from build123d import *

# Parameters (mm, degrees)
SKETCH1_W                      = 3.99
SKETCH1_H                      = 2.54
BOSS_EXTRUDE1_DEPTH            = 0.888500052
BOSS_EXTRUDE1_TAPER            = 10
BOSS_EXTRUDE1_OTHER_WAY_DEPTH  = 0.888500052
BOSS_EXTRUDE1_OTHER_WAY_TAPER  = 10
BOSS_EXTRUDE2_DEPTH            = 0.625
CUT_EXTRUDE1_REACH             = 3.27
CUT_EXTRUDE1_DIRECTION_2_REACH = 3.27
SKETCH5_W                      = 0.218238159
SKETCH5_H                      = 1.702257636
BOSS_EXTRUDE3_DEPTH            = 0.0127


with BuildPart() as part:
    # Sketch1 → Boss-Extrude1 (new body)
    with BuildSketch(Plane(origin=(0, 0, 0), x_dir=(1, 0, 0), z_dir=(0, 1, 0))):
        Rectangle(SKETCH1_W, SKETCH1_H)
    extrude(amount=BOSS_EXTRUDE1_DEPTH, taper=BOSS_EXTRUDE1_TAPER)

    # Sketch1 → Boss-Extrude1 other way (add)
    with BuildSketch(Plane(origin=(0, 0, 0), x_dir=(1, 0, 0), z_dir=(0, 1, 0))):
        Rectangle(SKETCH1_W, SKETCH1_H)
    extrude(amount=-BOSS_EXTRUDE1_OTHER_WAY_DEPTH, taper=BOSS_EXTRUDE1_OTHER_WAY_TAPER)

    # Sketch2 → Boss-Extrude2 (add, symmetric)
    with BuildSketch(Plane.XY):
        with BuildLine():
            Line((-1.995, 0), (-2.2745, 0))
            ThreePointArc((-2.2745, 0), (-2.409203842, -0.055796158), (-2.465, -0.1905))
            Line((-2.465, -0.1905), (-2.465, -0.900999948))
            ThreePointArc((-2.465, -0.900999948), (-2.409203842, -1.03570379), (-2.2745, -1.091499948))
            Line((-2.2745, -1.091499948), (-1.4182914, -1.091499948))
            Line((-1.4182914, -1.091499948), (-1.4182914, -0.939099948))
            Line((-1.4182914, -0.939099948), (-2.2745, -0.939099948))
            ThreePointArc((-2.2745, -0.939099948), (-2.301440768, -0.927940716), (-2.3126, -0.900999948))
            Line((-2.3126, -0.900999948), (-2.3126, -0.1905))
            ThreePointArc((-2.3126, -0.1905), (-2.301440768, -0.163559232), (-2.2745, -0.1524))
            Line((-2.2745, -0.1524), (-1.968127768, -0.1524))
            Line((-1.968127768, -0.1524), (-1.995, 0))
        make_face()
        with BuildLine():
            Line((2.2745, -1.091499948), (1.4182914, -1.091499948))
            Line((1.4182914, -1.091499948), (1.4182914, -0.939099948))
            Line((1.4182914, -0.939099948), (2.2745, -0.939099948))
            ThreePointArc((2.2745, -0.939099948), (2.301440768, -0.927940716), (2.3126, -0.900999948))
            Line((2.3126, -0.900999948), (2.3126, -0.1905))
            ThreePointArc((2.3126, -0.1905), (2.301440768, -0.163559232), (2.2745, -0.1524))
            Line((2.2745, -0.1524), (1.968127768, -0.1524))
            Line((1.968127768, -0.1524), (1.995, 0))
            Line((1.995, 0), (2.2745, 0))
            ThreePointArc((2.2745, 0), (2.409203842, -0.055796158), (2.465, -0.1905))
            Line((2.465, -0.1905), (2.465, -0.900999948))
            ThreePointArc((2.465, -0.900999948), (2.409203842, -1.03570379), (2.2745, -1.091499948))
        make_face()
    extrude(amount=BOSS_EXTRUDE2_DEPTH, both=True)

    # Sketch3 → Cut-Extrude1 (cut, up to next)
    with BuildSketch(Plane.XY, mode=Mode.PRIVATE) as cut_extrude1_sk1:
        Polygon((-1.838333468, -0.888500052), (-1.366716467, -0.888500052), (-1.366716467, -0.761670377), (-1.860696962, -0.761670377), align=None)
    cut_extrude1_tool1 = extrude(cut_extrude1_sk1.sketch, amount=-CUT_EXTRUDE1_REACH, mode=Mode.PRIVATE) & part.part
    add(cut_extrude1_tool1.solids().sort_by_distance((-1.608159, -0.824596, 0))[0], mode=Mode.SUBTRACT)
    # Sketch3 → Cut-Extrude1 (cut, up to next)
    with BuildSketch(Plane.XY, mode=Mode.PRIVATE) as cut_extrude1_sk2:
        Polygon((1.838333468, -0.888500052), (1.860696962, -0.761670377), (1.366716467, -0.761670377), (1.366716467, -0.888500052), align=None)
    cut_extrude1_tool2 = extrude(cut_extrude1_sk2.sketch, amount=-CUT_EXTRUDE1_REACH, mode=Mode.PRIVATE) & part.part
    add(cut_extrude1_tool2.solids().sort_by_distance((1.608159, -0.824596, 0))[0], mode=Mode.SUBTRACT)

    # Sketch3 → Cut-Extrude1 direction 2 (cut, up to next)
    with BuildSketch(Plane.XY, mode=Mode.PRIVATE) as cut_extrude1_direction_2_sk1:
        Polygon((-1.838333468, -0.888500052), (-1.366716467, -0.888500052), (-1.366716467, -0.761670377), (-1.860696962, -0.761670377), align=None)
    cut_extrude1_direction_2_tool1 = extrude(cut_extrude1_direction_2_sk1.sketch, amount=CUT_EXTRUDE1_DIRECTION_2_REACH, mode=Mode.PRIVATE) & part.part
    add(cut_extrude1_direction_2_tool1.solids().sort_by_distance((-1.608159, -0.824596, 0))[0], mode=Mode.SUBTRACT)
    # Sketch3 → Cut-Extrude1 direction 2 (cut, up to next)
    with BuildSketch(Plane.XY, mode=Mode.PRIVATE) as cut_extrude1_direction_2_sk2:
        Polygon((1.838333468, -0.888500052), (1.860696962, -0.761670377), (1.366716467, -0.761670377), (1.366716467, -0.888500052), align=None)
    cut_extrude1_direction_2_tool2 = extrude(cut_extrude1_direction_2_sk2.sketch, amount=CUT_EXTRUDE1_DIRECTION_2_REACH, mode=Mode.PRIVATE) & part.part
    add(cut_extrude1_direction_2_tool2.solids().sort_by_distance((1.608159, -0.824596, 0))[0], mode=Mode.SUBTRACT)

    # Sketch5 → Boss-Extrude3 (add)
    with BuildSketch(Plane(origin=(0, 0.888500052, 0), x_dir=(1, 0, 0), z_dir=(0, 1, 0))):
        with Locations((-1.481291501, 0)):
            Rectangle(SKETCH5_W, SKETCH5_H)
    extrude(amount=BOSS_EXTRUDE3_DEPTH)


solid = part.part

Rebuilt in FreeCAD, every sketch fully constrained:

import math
import FreeCAD as App
import Part
import Sketcher

V = App.Vector
Q = App.Units.Quantity

doc = App.newDocument("Part")
body = doc.addObject("PartDesign::Body", "Body")

sketch1 = body.newObject("Sketcher::SketchObject", "Sketch")
sketch1.AttachmentSupport = (doc.getObject("XZ_Plane"), [""])
sketch1.MapMode = "FlatFace"
sketch1.addGeometry([
    Part.LineSegment(V(-2, -1.3, 0), V(-2, 1.3, 0)),
    Part.LineSegment(V(-2, 1.3, 0), V(2, 1.3, 0)),
    Part.LineSegment(V(2, 1.3, 0), V(2, -1.3, 0)),
    Part.LineSegment(V(2, -1.3, 0), V(-2, -1.3, 0)),
], False)
sketch1.addConstraint([
    Sketcher.Constraint("Coincident", 0, 2, 1, 1),
    Sketcher.Constraint("Coincident", 1, 2, 2, 1),
    Sketcher.Constraint("Coincident", 2, 2, 3, 1),
    Sketcher.Constraint("Coincident", 3, 2, 0, 1),
    Sketcher.Constraint("Vertical", 0),
    Sketcher.Constraint("Horizontal", 1),
    Sketcher.Constraint("Vertical", 2),
    Sketcher.Constraint("Horizontal", 3),
    Sketcher.Constraint("Symmetric", 0, 2, 2, 2, -1, 1),
    Sketcher.Constraint("DistanceY", 0, 1, 0, 2, Q("0.1 in")),
    Sketcher.Constraint("DistanceX", 1, 1, 1, 2, Q("3.99 mm")),
])
pad1 = body.newObject("PartDesign::Pad", "Pad")
pad1.Profile = sketch1
pad1.Length = 0.8885
pad1.Reversed = True
pad1.TaperAngle = -10

sketch2 = body.newObject("Sketcher::SketchObject", "Sketch001")
sketch2.AttachmentSupport = (doc.getObject("XZ_Plane"), [""])
sketch2.MapMode = "FlatFace"
sketch2.addGeometry([
    Part.LineSegment(V(-2, -1.3, 0), V(-2, 1.3, 0)),
    Part.LineSegment(V(-2, 1.3, 0), V(2, 1.3, 0)),
    Part.LineSegment(V(2, 1.3, 0), V(2, -1.3, 0)),
    Part.LineSegment(V(2, -1.3, 0), V(-2, -1.3, 0)),
], False)
sketch2.addConstraint([
    Sketcher.Constraint("Coincident", 0, 2, 1, 1),
    Sketcher.Constraint("Coincident", 1, 2, 2, 1),
    Sketcher.Constraint("Coincident", 2, 2, 3, 1),
    Sketcher.Constraint("Coincident", 3, 2, 0, 1),
    Sketcher.Constraint("Vertical", 0),
    Sketcher.Constraint("Horizontal", 1),
    Sketcher.Constraint("Vertical", 2),
    Sketcher.Constraint("Horizontal", 3),
    Sketcher.Constraint("Symmetric", 0, 2, 2, 2, -1, 1),
    Sketcher.Constraint("DistanceY", 0, 1, 0, 2, Q("0.1 in")),
    Sketcher.Constraint("DistanceX", 1, 1, 1, 2, Q("3.99 mm")),
])
pad2 = body.newObject("PartDesign::Pad", "Pad001")
pad2.Profile = sketch2
pad2.Length = 0.8885
pad2.TaperAngle = -10

sketch3 = body.newObject("Sketcher::SketchObject", "Sketch002")
sketch3.AttachmentSupport = (doc.getObject("XY_Plane"), [""])
sketch3.MapMode = "FlatFace"
sketch3.addGeometry([
    Part.LineSegment(V(-1.995, 0, 0), V(-2.275, 0, 0)),
    Part.ArcOfCircle(Part.Circle(V(-2.275, -0.19, 0), V(0, 0, 1), 0.19), math.radians(90), math.radians(180)),
    Part.LineSegment(V(-2.465, -0.191, 0), V(-2.465, -0.901, 0)),
    Part.ArcOfCircle(Part.Circle(V(-2.275, -0.901, 0), V(0, 0, 1), 0.19), math.radians(180), math.radians(270)),
    Part.LineSegment(V(-2.275, -1.091, 0), V(-1.418, -1.091, 0)),
    Part.LineSegment(V(-1.418, -1.091, 0), V(-1.418, -0.939, 0)),
    Part.LineSegment(V(-1.418, -0.939, 0), V(-2.275, -0.939, 0)),
    Part.ArcOfCircle(Part.Circle(V(-2.274, -0.901, 0), V(0, 0, 1), 0.038), math.radians(-180), math.radians(-90)),
    Part.LineSegment(V(-2.313, -0.901, 0), V(-2.313, -0.191, 0)),
    Part.ArcOfCircle(Part.Circle(V(-2.274, -0.191, 0), V(0, 0, 1), 0.038), math.radians(90), math.radians(180)),
    Part.LineSegment(V(-2.275, -0.152, 0), V(-1.968, -0.152, 0)),
    Part.LineSegment(V(-1.968, -0.152, 0), V(-1.995, 0, 0)),
    Part.LineSegment(V(1.418, -1.091, 0), V(2.275, -1.091, 0)),
    Part.ArcOfCircle(Part.Circle(V(2.275, -0.901, 0), V(0, 0, 1), 0.19), math.radians(-90), math.radians(0)),
    Part.LineSegment(V(2.465, -0.901, 0), V(2.465, -0.191, 0)),
    Part.ArcOfCircle(Part.Circle(V(2.275, -0.19, 0), V(0, 0, 1), 0.19), math.radians(0), math.radians(90)),
    Part.LineSegment(V(2.275, 0, 0), V(1.995, 0, 0)),
    Part.LineSegment(V(1.995, 0, 0), V(1.968, -0.152, 0)),
    Part.LineSegment(V(1.968, -0.152, 0), V(2.275, -0.152, 0)),
    Part.ArcOfCircle(Part.Circle(V(2.274, -0.191, 0), V(0, 0, 1), 0.038), math.radians(0), math.radians(90)),
    Part.LineSegment(V(2.313, -0.191, 0), V(2.313, -0.901, 0)),
    Part.ArcOfCircle(Part.Circle(V(2.274, -0.901, 0), V(0, 0, 1), 0.038), math.radians(-90), math.radians(0)),
    Part.LineSegment(V(2.275, -0.939, 0), V(1.418, -0.939, 0)),
    Part.LineSegment(V(1.418, -0.939, 0), V(1.418, -1.091, 0)),
], False)
sketch3.addConstraint([
    Sketcher.Constraint("Tangent", 0, 2, 1, 1),
    Sketcher.Constraint("Tangent", 1, 2, 2, 1),
    Sketcher.Constraint("Tangent", 2, 2, 3, 1),
    Sketcher.Constraint("Tangent", 3, 2, 4, 1),
    Sketcher.Constraint("Coincident", 4, 2, 5, 1),
    Sketcher.Constraint("Coincident", 5, 2, 6, 1),
    Sketcher.Constraint("Tangent", 6, 2, 7, 2),
    Sketcher.Constraint("Tangent", 7, 1, 8, 1),
    Sketcher.Constraint("Tangent", 8, 2, 9, 2),
    Sketcher.Constraint("Tangent", 9, 1, 10, 1),
    Sketcher.Constraint("Coincident", 10, 2, 11, 1),
    Sketcher.Constraint("Coincident", 11, 2, 0, 1),
    Sketcher.Constraint("Tangent", 12, 2, 13, 1),
    Sketcher.Constraint("Tangent", 13, 2, 14, 1),
    Sketcher.Constraint("Tangent", 14, 2, 15, 1),
    Sketcher.Constraint("Tangent", 15, 2, 16, 1),
    Sketcher.Constraint("Coincident", 16, 2, 17, 1),
    Sketcher.Constraint("Coincident", 17, 2, 18, 1),
    Sketcher.Constraint("Tangent", 18, 2, 19, 2),
    Sketcher.Constraint("Tangent", 19, 1, 20, 1),
    Sketcher.Constraint("Tangent", 20, 2, 21, 2),
    Sketcher.Constraint("Tangent", 21, 1, 22, 1),
    Sketcher.Constraint("Coincident", 22, 2, 23, 1),
    Sketcher.Constraint("Coincident", 23, 2, 12, 1),
    Sketcher.Constraint("Horizontal", 0),
    Sketcher.Constraint("Vertical", 2),
    Sketcher.Constraint("Horizontal", 4),
    Sketcher.Constraint("Vertical", 5),
    Sketcher.Constraint("Horizontal", 6),
    Sketcher.Constraint("Vertical", 8),
    Sketcher.Constraint("Horizontal", 10),
    Sketcher.Constraint("Horizontal", 12),
    Sketcher.Constraint("Vertical", 14),
    Sketcher.Constraint("Horizontal", 16),
    Sketcher.Constraint("Horizontal", 18),
    Sketcher.Constraint("Vertical", 20),
    Sketcher.Constraint("Horizontal", 22),
    Sketcher.Constraint("Vertical", 23),
    Sketcher.Constraint("Coincident", 7, 3, 3, 3),
    Sketcher.Constraint("Coincident", 9, 3, 1, 3),
    Sketcher.Constraint("Coincident", 19, 3, 15, 3),
    Sketcher.Constraint("Coincident", 21, 3, 13, 3),
    Sketcher.Constraint("Equal", 1, 3),
    Sketcher.Constraint("Equal", 3, 13),
    Sketcher.Constraint("Equal", 13, 15),
    Sketcher.Constraint("Equal", 9, 19),
    Sketcher.Constraint("Symmetric", 0, 2, 15, 2, -1, 1),
    Sketcher.Constraint("Symmetric", 11, 2, 16, 2, -2),
    Sketcher.Constraint("Symmetric", 5, 2, 22, 2, -2),
    Sketcher.Constraint("Equal", 10, 18),
    Sketcher.Constraint("Angle", 11, Q("100 deg")),
    Sketcher.Constraint("Radius", 1, Q("0.0075 in")),
    Sketcher.Constraint("Radius", 7, Q("0.0015 in")),
    Sketcher.Constraint("DistanceX", 0, 2, 0, 1, Q("0.2795 mm")),
    Sketcher.Constraint("DistanceY", 2, 2, 2, 1, Q("0.7105 mm")),
    Sketcher.Constraint("DistanceX", 4, 1, 4, 2, Q("0.856209 mm")),
    Sketcher.Constraint("DistanceX", 1, 3, -1, 1, Q("2.2745 mm")),
])
pad3 = body.newObject("PartDesign::Pad", "Pad002")
pad3.Profile = sketch3
pad3.Length = 1.25
pad3.Midplane = True

sketch4 = body.newObject("Sketcher::SketchObject", "Sketch003")
sketch4.AttachmentSupport = (doc.getObject("XY_Plane"), [""])
sketch4.MapMode = "FlatFace"
sketch4.addGeometry([
    Part.LineSegment(V(-1.84, -0.89, 0), V(-1.37, -0.89, 0)),
    Part.LineSegment(V(-1.37, -0.89, 0), V(-1.37, -0.76, 0)),
    Part.LineSegment(V(-1.37, -0.76, 0), V(-1.86, -0.76, 0)),
    Part.LineSegment(V(-1.86, -0.76, 0), V(-1.84, -0.89, 0)),
], False)
sketch4.addConstraint([
    Sketcher.Constraint("Coincident", 0, 2, 1, 1),
    Sketcher.Constraint("Coincident", 1, 2, 2, 1),
    Sketcher.Constraint("Coincident", 2, 2, 3, 1),
    Sketcher.Constraint("Coincident", 3, 2, 0, 1),
    Sketcher.Constraint("Horizontal", 0),
    Sketcher.Constraint("Vertical", 1),
    Sketcher.Constraint("Horizontal", 2),
    Sketcher.Constraint("Angle", 3, Q("-80 deg")),
    Sketcher.Constraint("DistanceX", 2, 2, 2, 1, Q("0.49398 mm")),
    Sketcher.Constraint("DistanceY", 1, 1, 1, 2, Q("0.12683 mm")),
    Sketcher.Constraint("DistanceY", 0, 2, -1, 1, Q("0.8885 mm")),
    Sketcher.Constraint("DistanceX", 0, 2, -1, 1, Q("1.366716 mm")),
])
pocket1 = body.newObject("PartDesign::Pocket", "Pocket")
pocket1.Profile = sketch4
pocket1.Type = "UpToFirst"

sketch5 = body.newObject("Sketcher::SketchObject", "Sketch004")
sketch5.AttachmentSupport = (doc.getObject("XY_Plane"), [""])
sketch5.MapMode = "FlatFace"
sketch5.addGeometry([
    Part.LineSegment(V(1.84, -0.89, 0), V(1.86, -0.76, 0)),
    Part.LineSegment(V(1.86, -0.76, 0), V(1.37, -0.76, 0)),
    Part.LineSegment(V(1.37, -0.76, 0), V(1.37, -0.89, 0)),
    Part.LineSegment(V(1.37, -0.89, 0), V(1.84, -0.89, 0)),
], False)
sketch5.addConstraint([
    Sketcher.Constraint("Coincident", 0, 2, 1, 1),
    Sketcher.Constraint("Coincident", 1, 2, 2, 1),
    Sketcher.Constraint("Coincident", 2, 2, 3, 1),
    Sketcher.Constraint("Coincident", 3, 2, 0, 1),
    Sketcher.Constraint("Horizontal", 1),
    Sketcher.Constraint("Vertical", 2),
    Sketcher.Constraint("Horizontal", 3),
    Sketcher.Constraint("Angle", 0, Q("80 deg")),
    Sketcher.Constraint("DistanceX", 1, 2, 1, 1, Q("0.49398 mm")),
    Sketcher.Constraint("DistanceY", 2, 2, 2, 1, Q("0.12683 mm")),
    Sketcher.Constraint("DistanceY", 2, 2, -1, 1, Q("0.8885 mm")),
    Sketcher.Constraint("DistanceX", -1, 1, 0, 2, Q("1.860697 mm")),
])
pocket2 = body.newObject("PartDesign::Pocket", "Pocket001")
pocket2.Profile = sketch5
pocket2.Type = "UpToFirst"

sketch6 = body.newObject("Sketcher::SketchObject", "Sketch005")
sketch6.AttachmentSupport = (doc.getObject("XY_Plane"), [""])
sketch6.MapMode = "FlatFace"
sketch6.addGeometry([
    Part.LineSegment(V(-1.84, -0.89, 0), V(-1.37, -0.89, 0)),
    Part.LineSegment(V(-1.37, -0.89, 0), V(-1.37, -0.76, 0)),
    Part.LineSegment(V(-1.37, -0.76, 0), V(-1.86, -0.76, 0)),
    Part.LineSegment(V(-1.86, -0.76, 0), V(-1.84, -0.89, 0)),
], False)
sketch6.addConstraint([
    Sketcher.Constraint("Coincident", 0, 2, 1, 1),
    Sketcher.Constraint("Coincident", 1, 2, 2, 1),
    Sketcher.Constraint("Coincident", 2, 2, 3, 1),
    Sketcher.Constraint("Coincident", 3, 2, 0, 1),
    Sketcher.Constraint("Horizontal", 0),
    Sketcher.Constraint("Vertical", 1),
    Sketcher.Constraint("Horizontal", 2),
    Sketcher.Constraint("Angle", 3, Q("-80 deg")),
    Sketcher.Constraint("DistanceX", 2, 2, 2, 1, Q("0.49398 mm")),
    Sketcher.Constraint("DistanceY", 1, 1, 1, 2, Q("0.12683 mm")),
    Sketcher.Constraint("DistanceY", 0, 2, -1, 1, Q("0.8885 mm")),
    Sketcher.Constraint("DistanceX", 0, 2, -1, 1, Q("1.366716 mm")),
])
pocket3 = body.newObject("PartDesign::Pocket", "Pocket002")
pocket3.Profile = sketch6
pocket3.Type = "UpToFirst"
pocket3.Reversed = True

sketch7 = body.newObject("Sketcher::SketchObject", "Sketch006")
sketch7.AttachmentSupport = (doc.getObject("XY_Plane"), [""])
sketch7.MapMode = "FlatFace"
sketch7.addGeometry([
    Part.LineSegment(V(1.84, -0.89, 0), V(1.86, -0.76, 0)),
    Part.LineSegment(V(1.86, -0.76, 0), V(1.37, -0.76, 0)),
    Part.LineSegment(V(1.37, -0.76, 0), V(1.37, -0.89, 0)),
    Part.LineSegment(V(1.37, -0.89, 0), V(1.84, -0.89, 0)),
], False)
sketch7.addConstraint([
    Sketcher.Constraint("Coincident", 0, 2, 1, 1),
    Sketcher.Constraint("Coincident", 1, 2, 2, 1),
    Sketcher.Constraint("Coincident", 2, 2, 3, 1),
    Sketcher.Constraint("Coincident", 3, 2, 0, 1),
    Sketcher.Constraint("Horizontal", 1),
    Sketcher.Constraint("Vertical", 2),
    Sketcher.Constraint("Horizontal", 3),
    Sketcher.Constraint("Angle", 0, Q("80 deg")),
    Sketcher.Constraint("DistanceX", 1, 2, 1, 1, Q("0.49398 mm")),
    Sketcher.Constraint("DistanceY", 2, 2, 2, 1, Q("0.12683 mm")),
    Sketcher.Constraint("DistanceY", 2, 2, -1, 1, Q("0.8885 mm")),
    Sketcher.Constraint("DistanceX", -1, 1, 0, 2, Q("1.860697 mm")),
])
pocket4 = body.newObject("PartDesign::Pocket", "Pocket003")
pocket4.Profile = sketch7
pocket4.Type = "UpToFirst"
pocket4.Reversed = True

sketch8 = body.newObject("Sketcher::SketchObject", "Sketch007")
sketch8.AttachmentSupport = (doc.getObject("XZ_Plane"), [""])
sketch8.MapMode = "FlatFace"
sketch8.AttachmentOffset = App.Placement(V(0, 0, -0.8885), App.Rotation())
sketch8.addGeometry([
    Part.LineSegment(V(-1.59, -0.85, 0), V(-1.59, 0.85, 0)),
    Part.LineSegment(V(-1.59, 0.85, 0), V(-1.37, 0.85, 0)),
    Part.LineSegment(V(-1.37, 0.85, 0), V(-1.37, -0.85, 0)),
    Part.LineSegment(V(-1.37, -0.85, 0), V(-1.59, -0.85, 0)),
], False)
sketch8.addConstraint([
    Sketcher.Constraint("Coincident", 0, 2, 1, 1),
    Sketcher.Constraint("Coincident", 1, 2, 2, 1),
    Sketcher.Constraint("Coincident", 2, 2, 3, 1),
    Sketcher.Constraint("Coincident", 3, 2, 0, 1),
    Sketcher.Constraint("Vertical", 0),
    Sketcher.Constraint("Horizontal", 1),
    Sketcher.Constraint("Vertical", 2),
    Sketcher.Constraint("Horizontal", 3),
    Sketcher.Constraint("DistanceX", 1, 1, 1, 2, Q("0.218238 mm")),
    Sketcher.Constraint("DistanceY", 0, 1, 0, 2, Q("1.702258 mm")),
    Sketcher.Constraint("DistanceX", 0, 2, -1, 1, Q("1.590411 mm")),
    Sketcher.Constraint("DistanceY", -1, 1, 0, 2, Q("0.851129 mm")),
])
pad4 = body.newObject("PartDesign::Pad", "Pad003")
pad4.Profile = sketch8
pad4.Length = Q("0.0005 in")
pad4.Reversed = True

doc.recompute()
